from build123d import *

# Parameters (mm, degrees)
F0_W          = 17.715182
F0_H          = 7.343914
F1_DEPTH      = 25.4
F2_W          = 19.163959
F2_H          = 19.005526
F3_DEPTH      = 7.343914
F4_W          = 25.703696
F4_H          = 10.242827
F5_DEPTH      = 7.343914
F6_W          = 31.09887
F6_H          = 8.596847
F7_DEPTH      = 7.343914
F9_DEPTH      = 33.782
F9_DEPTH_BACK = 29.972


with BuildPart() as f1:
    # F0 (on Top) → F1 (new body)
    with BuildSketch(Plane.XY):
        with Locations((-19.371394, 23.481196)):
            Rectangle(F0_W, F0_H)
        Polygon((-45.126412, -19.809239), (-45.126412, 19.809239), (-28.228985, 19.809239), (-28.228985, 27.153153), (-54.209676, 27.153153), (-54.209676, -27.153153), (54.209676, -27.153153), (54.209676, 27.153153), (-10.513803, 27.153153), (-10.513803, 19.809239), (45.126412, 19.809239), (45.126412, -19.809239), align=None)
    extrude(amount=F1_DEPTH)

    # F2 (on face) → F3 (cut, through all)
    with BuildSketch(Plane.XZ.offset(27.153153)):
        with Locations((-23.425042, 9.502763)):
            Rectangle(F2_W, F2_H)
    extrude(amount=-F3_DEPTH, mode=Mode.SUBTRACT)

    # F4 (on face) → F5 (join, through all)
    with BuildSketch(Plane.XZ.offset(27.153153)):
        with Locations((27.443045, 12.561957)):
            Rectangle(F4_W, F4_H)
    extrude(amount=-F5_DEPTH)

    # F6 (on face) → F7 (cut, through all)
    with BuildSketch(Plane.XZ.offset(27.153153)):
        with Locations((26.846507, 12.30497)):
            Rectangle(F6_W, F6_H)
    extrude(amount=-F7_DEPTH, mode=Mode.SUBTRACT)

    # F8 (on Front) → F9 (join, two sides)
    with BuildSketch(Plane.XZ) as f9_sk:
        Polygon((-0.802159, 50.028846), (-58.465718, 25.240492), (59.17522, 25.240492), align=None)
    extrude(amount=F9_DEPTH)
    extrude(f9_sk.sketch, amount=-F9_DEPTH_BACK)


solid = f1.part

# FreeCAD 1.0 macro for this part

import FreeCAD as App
import Part
import Sketcher
Q = App.Units.Quantity


def add_polygon(sketch, points):
    """Adds a closed chain of lines whose ends are joined by coincident constraints."""
    first, n = sketch.GeometryCount, len(points)
    for a, b in zip(points, points[1:] + points[:1]):
        sketch.addGeometry(Part.LineSegment(App.Vector(*a, 0), App.Vector(*b, 0)), False)
    for i in range(n):
        sketch.addConstraint(Sketcher.Constraint("Coincident", first + i, 2, first + (i + 1) % n, 1))

doc = App.newDocument("Part")
body = doc.addObject("PartDesign::Body", "Body")

sketch1 = doc.addObject("Sketcher::SketchObject", "Sketch")
body.addObject(sketch1)
sketch1.AttachmentSupport = (doc.XY_Plane, [""])
sketch1.MapMode = "FlatFace"
add_polygon(sketch1, [(-54, 27), (-54, -27), (54, -27), (54, 27)])
add_polygon(sketch1, [(45, 20), (45, -20), (-45, -20), (-45, 20)])
sketch1.addConstraint(Sketcher.Constraint("Vertical", 0))
sketch1.addConstraint(Sketcher.Constraint("Horizontal", 1))
sketch1.addConstraint(Sketcher.Constraint("Vertical", 2))
sketch1.addConstraint(Sketcher.Constraint("Horizontal", 3))
sketch1.addConstraint(Sketcher.Constraint("Vertical", 4))
sketch1.addConstraint(Sketcher.Constraint("Horizontal", 5))
sketch1.addConstraint(Sketcher.Constraint("Vertical", 6))
sketch1.addConstraint(Sketcher.Constraint("Horizontal", 7))
sketch1.addConstraint(Sketcher.Constraint("Symmetric", 0, 2, 2, 2, -1, 1))
sketch1.addConstraint(Sketcher.Constraint("Symmetric", 4, 2, 6, 2, -1, 1))
sketch1.addConstraint(Sketcher.Constraint("DistanceY", 4, 2, 4, 1, 39.618478))
sketch1.addConstraint(Sketcher.Constraint("DistanceX", 1, 1, 1, 2, 108.419352))
sketch1.addConstraint(Sketcher.Constraint("DistanceX", 5, 2, 5, 1, 90.252824))
sketch1.addConstraint(Sketcher.Constraint("DistanceY", 0, 2, 0, 1, 54.306306))
pad1 = doc.addObject("PartDesign::Pad", "Pad")
body.addObject(pad1)
pad1.Profile = sketch1
pad1.Length = Q("1 in")

sketch2 = doc.addObject("Sketcher::SketchObject", "Sketch001")
body.addObject(sketch2)
sketch2.AttachmentSupport = (doc.XZ_Plane, [""])
sketch2.MapMode = "FlatFace"
sketch2.AttachmentOffset = App.Placement(App.Vector(0, 0, 27.153153), App.Rotation())
add_polygon(sketch2, [(-33, 19), (-33, 0), (-14, 0), (-14, 19)])
sketch2.addConstraint(Sketcher.Constraint("Vertical", 0))
sketch2.addConstraint(Sketcher.Constraint("Horizontal", 1))
sketch2.addConstraint(Sketcher.Constraint("Vertical", 2))
sketch2.addConstraint(Sketcher.Constraint("Horizontal", 3))
sketch2.addConstraint(Sketcher.Constraint("PointOnObject", 0, 2, -1))
sketch2.addConstraint(Sketcher.Constraint("DistanceX", 1, 1, 1, 2, 19.163959))
sketch2.addConstraint(Sketcher.Constraint("DistanceY", 0, 2, 0, 1, 19.005526))
sketch2.addConstraint(Sketcher.Constraint("DistanceX", 0, 2, -1, 1, 33.007022))
pocket1 = doc.addObject("PartDesign::Pocket", "Pocket")
body.addObject(pocket1)
pocket1.Profile = sketch2
pocket1.Length = 7.343914

sketch3 = doc.addObject("Sketcher::SketchObject", "Sketch002")
body.addObject(sketch3)
sketch3.AttachmentSupport = (doc.XZ_Plane, [""])
sketch3.MapMode = "FlatFace"
sketch3.AttachmentOffset = App.Placement(App.Vector(0, 0, 27.153153), App.Rotation())
add_polygon(sketch3, [(15, 18), (15, 7), (40, 7), (40, 18)])
sketch3.addConstraint(Sketcher.Constraint("Vertical", 0))
sketch3.addConstraint(Sketcher.Constraint("Horizontal", 1))
sketch3.addConstraint(Sketcher.Constraint("Vertical", 2))
sketch3.addConstraint(Sketcher.Constraint("Horizontal", 3))
sketch3.addConstraint(Sketcher.Constraint("DistanceX", 1, 1, 1, 2, 25.703696))
sketch3.addConstraint(Sketcher.Constraint("DistanceY", 0, 2, 0, 1, 10.242827))
sketch3.addConstraint(Sketcher.Constraint("DistanceY", -1, 1, 2, 2, 17.68337))
sketch3.addConstraint(Sketcher.Constraint("DistanceX", -1, 1, 0, 2, 14.591197))
pad2 = doc.addObject("PartDesign::Pad", "Pad001")
body.addObject(pad2)
pad2.Profile = sketch3
pad2.Length = 7.343914
pad2.Reversed = True

sketch4 = doc.addObject("Sketcher::SketchObject", "Sketch003")
body.addObject(sketch4)
sketch4.AttachmentSupport = (doc.XZ_Plane, [""])
sketch4.MapMode = "FlatFace"
sketch4.AttachmentOffset = App.Placement(App.Vector(0, 0, 27.153153), App.Rotation())
add_polygon(sketch4, [(11, 17), (11, 8), (42, 8), (42, 17)])
sketch4.addConstraint(Sketcher.Constraint("Vertical", 0))
sketch4.addConstraint(Sketcher.Constraint("Horizontal", 1))
sketch4.addConstraint(Sketcher.Constraint("Vertical", 2))
sketch4.addConstraint(Sketcher.Constraint("Horizontal", 3))
sketch4.addConstraint(Sketcher.Constraint("DistanceX", 1, 1, 1, 2, 31.09887))
sketch4.addConstraint(Sketcher.Constraint("DistanceY", 0, 2, 0, 1, 8.596847))
sketch4.addConstraint(Sketcher.Constraint("DistanceX", -1, 1, 1, 2, 42.395942))
sketch4.addConstraint(Sketcher.Constraint("DistanceY", -1, 1, 0, 2, 8.006547))
pocket2 = doc.addObject("PartDesign::Pocket", "Pocket001")
body.addObject(pocket2)
pocket2.Profile = sketch4
pocket2.Length = 7.343914

sketch5 = doc.addObject("Sketcher::SketchObject", "Sketch004")
body.addObject(sketch5)
sketch5.AttachmentSupport = (doc.XZ_Plane, [""])
sketch5.MapMode = "FlatFace"
add_polygon(sketch5, [(-1, 50), (-58, 25), (59, 25)])
sketch5.addConstraint(Sketcher.Constraint("Horizontal", 1))
sketch5.addConstraint(Sketcher.Constraint("DistanceX", 0, 2, -1, 1, Q("2.3017999 in")))
sketch5.addConstraint(Sketcher.Constraint("DistanceX", 1, 1, 1, 2, 117.640938))
sketch5.addConstraint(Sketcher.Constraint("DistanceY", -1, 1, 0, 2, 25.240492))
sketch5.addConstraint(Sketcher.Constraint("DistanceX", 2, 2, -1, 1, 0.802159))
sketch5.addConstraint(Sketcher.Constraint("Distance", 0, 62.765823))
pad3 = doc.addObject("PartDesign::Pad", "Pad002")
body.addObject(pad3)
pad3.Profile = sketch5
pad3.Type = "TwoLengths"
pad3.Length = Q("1.33 in")
pad3.Length2 = Q("1.18 in")

doc.recompute()
